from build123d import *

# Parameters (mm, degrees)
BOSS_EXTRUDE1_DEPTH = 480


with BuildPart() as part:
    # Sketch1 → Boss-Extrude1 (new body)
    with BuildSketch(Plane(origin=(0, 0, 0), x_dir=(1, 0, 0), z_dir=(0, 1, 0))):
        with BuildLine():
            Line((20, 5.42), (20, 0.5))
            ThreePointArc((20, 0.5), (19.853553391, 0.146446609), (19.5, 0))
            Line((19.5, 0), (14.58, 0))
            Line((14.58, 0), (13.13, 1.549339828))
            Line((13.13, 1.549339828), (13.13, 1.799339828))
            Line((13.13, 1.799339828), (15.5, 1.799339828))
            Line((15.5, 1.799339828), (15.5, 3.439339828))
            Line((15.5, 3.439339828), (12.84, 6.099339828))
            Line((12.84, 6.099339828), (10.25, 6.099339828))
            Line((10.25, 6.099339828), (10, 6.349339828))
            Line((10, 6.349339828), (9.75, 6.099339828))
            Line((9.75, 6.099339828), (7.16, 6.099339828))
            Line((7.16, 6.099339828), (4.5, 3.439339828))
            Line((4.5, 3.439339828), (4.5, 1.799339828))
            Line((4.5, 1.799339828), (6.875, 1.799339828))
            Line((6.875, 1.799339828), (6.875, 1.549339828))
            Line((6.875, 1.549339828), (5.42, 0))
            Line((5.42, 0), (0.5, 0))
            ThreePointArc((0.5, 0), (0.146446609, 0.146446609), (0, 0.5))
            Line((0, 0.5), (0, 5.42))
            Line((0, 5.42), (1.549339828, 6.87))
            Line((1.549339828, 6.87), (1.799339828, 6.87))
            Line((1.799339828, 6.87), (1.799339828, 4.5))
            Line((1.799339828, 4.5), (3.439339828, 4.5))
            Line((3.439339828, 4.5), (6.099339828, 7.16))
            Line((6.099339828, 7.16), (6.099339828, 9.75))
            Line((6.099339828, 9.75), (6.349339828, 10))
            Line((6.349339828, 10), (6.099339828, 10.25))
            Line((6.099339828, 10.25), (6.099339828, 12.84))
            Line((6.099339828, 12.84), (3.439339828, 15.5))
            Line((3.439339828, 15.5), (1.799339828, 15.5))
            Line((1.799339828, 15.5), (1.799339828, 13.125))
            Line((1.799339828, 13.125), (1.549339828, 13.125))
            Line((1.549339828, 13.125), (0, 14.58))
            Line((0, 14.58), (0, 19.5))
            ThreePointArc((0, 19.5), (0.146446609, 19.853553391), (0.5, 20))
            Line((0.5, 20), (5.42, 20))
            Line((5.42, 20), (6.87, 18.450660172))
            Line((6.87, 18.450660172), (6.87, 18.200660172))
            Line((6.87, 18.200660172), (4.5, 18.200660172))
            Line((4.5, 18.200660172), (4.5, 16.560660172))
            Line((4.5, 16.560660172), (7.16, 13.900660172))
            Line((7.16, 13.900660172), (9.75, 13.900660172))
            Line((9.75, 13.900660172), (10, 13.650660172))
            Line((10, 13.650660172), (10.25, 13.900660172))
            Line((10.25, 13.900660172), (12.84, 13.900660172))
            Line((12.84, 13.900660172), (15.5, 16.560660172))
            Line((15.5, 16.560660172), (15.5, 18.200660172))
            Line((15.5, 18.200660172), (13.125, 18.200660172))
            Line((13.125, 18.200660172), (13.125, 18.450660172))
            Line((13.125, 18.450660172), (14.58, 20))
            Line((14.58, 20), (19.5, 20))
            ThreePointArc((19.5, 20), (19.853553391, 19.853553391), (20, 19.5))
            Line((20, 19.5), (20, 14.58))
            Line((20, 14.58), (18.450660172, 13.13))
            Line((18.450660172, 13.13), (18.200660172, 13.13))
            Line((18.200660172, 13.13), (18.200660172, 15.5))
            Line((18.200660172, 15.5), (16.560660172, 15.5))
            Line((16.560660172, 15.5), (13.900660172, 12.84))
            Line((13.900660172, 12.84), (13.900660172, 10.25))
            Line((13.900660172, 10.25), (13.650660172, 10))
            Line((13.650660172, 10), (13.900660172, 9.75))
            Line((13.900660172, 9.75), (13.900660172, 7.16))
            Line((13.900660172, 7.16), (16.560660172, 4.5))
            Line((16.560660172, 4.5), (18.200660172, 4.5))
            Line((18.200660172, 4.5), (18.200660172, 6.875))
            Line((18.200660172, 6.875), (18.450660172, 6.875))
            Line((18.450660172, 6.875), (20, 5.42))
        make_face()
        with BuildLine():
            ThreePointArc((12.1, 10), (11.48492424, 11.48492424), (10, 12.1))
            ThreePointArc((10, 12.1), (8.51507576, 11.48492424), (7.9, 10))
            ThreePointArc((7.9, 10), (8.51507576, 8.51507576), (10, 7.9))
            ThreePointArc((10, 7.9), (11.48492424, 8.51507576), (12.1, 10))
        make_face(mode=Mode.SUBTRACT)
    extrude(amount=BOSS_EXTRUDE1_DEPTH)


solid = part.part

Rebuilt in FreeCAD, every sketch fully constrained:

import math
import FreeCAD as App
import Part
import Sketcher
from FreeCAD import Vector

doc = App.newDocument("Part")
params = doc.addObject("Spreadsheet::Sheet", "Params")
for row, (alias, value) in enumerate([
    ("sketch1_radius", "0.5 mm"),
    ("sketch1_radius2", "2.1 mm"),
    ("sketch1_width", "0.25 mm"),
    ("sketch1_width2", "1.64 mm"),
    ("sketch1_width3", "4.92 mm"),
    ("pad1_length", "480 mm"),
], start=1):
    params.set(f"A{row}", alias)
    params.set(f"B{row}", "=" + value)
    params.setAlias(f"B{row}", alias)

body = doc.addObject("PartDesign::Body", "Body")

# Sketch on XZ plane
sketch1 = body.newObject("Sketcher::SketchObject", "Sketch")
sketch1.AttachmentSupport = (doc.getObject("XZ_Plane"), [""])
sketch1.MapMode = "FlatFace"
sketch1.addGeometry([
    Part.LineSegment(Vector(20, -0.5, 0), Vector(20, -5.42, 0)),  # 0
    Part.LineSegment(Vector(20, -5.42, 0), Vector(18.45, -6.88, 0)),  # 1
    Part.LineSegment(Vector(18.45, -6.88, 0), Vector(18.2, -6.88, 0)),  # 2
    Part.LineSegment(Vector(18.2, -6.88, 0), Vector(18.2, -4.5, 0)),  # 3
    Part.LineSegment(Vector(18.2, -4.5, 0), Vector(16.56, -4.5, 0)),  # 4
    Part.LineSegment(Vector(16.56, -4.5, 0), Vector(13.9, -7.16, 0)),  # 5
    Part.LineSegment(Vector(13.9, -7.16, 0), Vector(13.9, -9.75, 0)),  # 6
    Part.LineSegment(Vector(13.9, -9.75, 0), Vector(13.65, -10, 0)),  # 7
    Part.LineSegment(Vector(13.65, -10, 0), Vector(13.9, -10.25, 0)),  # 8
    Part.LineSegment(Vector(13.9, -10.25, 0), Vector(13.9, -12.84, 0)),  # 9
    Part.LineSegment(Vector(13.9, -12.84, 0), Vector(16.56, -15.5, 0)),  # 10
    Part.LineSegment(Vector(16.56, -15.5, 0), Vector(18.2, -15.5, 0)),  # 11
    Part.LineSegment(Vector(18.2, -15.5, 0), Vector(18.2, -13.13, 0)),  # 12
    Part.LineSegment(Vector(18.2, -13.13, 0), Vector(18.45, -13.13, 0)),  # 13
    Part.LineSegment(Vector(18.45, -13.13, 0), Vector(20, -14.58, 0)),  # 14
    Part.LineSegment(Vector(20, -14.58, 0), Vector(20, -19.5, 0)),  # 15
    Part.ArcOfCircle(Part.Circle(Vector(19.5, -19.5, 0), Vector(0, 0, 1), 0.5), math.radians(-90), math.radians(0)),  # 16
    Part.LineSegment(Vector(19.5, -20, 0), Vector(14.58, -20, 0)),  # 17
    Part.LineSegment(Vector(14.58, -20, 0), Vector(13.12, -18.45, 0)),  # 18
    Part.LineSegment(Vector(13.12, -18.45, 0), Vector(13.12, -18.2, 0)),  # 19
    Part.LineSegment(Vector(13.12, -18.2, 0), Vector(15.5, -18.2, 0)),  # 20
    Part.LineSegment(Vector(15.5, -18.2, 0), Vector(15.5, -16.56, 0)),  # 21
    Part.LineSegment(Vector(15.5, -16.56, 0), Vector(12.84, -13.9, 0)),  # 22
    Part.LineSegment(Vector(12.84, -13.9, 0), Vector(10.25, -13.9, 0)),  # 23
    Part.LineSegment(Vector(10.25, -13.9, 0), Vector(10, -13.65, 0)),  # 24
    Part.LineSegment(Vector(10, -13.65, 0), Vector(9.75, -13.9, 0)),  # 25
    Part.LineSegment(Vector(9.75, -13.9, 0), Vector(7.16, -13.9, 0)),  # 26
    Part.LineSegment(Vector(7.16, -13.9, 0), Vector(4.5, -16.56, 0)),  # 27
    Part.LineSegment(Vector(4.5, -16.56, 0), Vector(4.5, -18.2, 0)),  # 28
    Part.LineSegment(Vector(4.5, -18.2, 0), Vector(6.87, -18.2, 0)),  # 29
    Part.LineSegment(Vector(6.87, -18.2, 0), Vector(6.87, -18.45, 0)),  # 30
    Part.LineSegment(Vector(6.87, -18.45, 0), Vector(5.42, -20, 0)),  # 31
    Part.LineSegment(Vector(5.42, -20, 0), Vector(0.5, -20, 0)),  # 32
    Part.ArcOfCircle(Part.Circle(Vector(0.5, -19.5, 0), Vector(0, 0, 1), 0.5), math.radians(180), math.radians(270)),  # 33
    Part.LineSegment(Vector(0, -19.5, 0), Vector(0, -14.58, 0)),  # 34
    Part.LineSegment(Vector(0, -14.58, 0), Vector(1.55, -13.12, 0)),  # 35
    Part.LineSegment(Vector(1.55, -13.12, 0), Vector(1.8, -13.12, 0)),  # 36
    Part.LineSegment(Vector(1.8, -13.12, 0), Vector(1.8, -15.5, 0)),  # 37
    Part.LineSegment(Vector(1.8, -15.5, 0), Vector(3.44, -15.5, 0)),  # 38
    Part.LineSegment(Vector(3.44, -15.5, 0), Vector(6.1, -12.84, 0)),  # 39
    Part.LineSegment(Vector(6.1, -12.84, 0), Vector(6.1, -10.25, 0)),  # 40
    Part.LineSegment(Vector(6.1, -10.25, 0), Vector(6.35, -10, 0)),  # 41
    Part.LineSegment(Vector(6.35, -10, 0), Vector(6.1, -9.75, 0)),  # 42
    Part.LineSegment(Vector(6.1, -9.75, 0), Vector(6.1, -7.16, 0)),  # 43
    Part.LineSegment(Vector(6.1, -7.16, 0), Vector(3.44, -4.5, 0)),  # 44
    Part.LineSegment(Vector(3.44, -4.5, 0), Vector(1.8, -4.5, 0)),  # 45
    Part.LineSegment(Vector(1.8, -4.5, 0), Vector(1.8, -6.87, 0)),  # 46
    Part.LineSegment(Vector(1.8, -6.87, 0), Vector(1.55, -6.87, 0)),  # 47
    Part.LineSegment(Vector(1.55, -6.87, 0), Vector(0, -5.42, 0)),  # 48
    Part.LineSegment(Vector(0, -5.42, 0), Vector(0, -0.5, 0)),  # 49
    Part.ArcOfCircle(Part.Circle(Vector(0.5, -0.5, 0), Vector(0, 0, 1), 0.5), math.radians(90), math.radians(180)),  # 50
    Part.LineSegment(Vector(0.5, 0, 0), Vector(5.42, 0, 0)),  # 51
    Part.LineSegment(Vector(5.42, 0, 0), Vector(6.88, -1.55, 0)),  # 52
    Part.LineSegment(Vector(6.88, -1.55, 0), Vector(6.88, -1.8, 0)),  # 53
    Part.LineSegment(Vector(6.88, -1.8, 0), Vector(4.5, -1.8, 0)),  # 54
    Part.LineSegment(Vector(4.5, -1.8, 0), Vector(4.5, -3.44, 0)),  # 55
    Part.LineSegment(Vector(4.5, -3.44, 0), Vector(7.16, -6.1, 0)),  # 56
    Part.LineSegment(Vector(7.16, -6.1, 0), Vector(9.75, -6.1, 0)),  # 57
    Part.LineSegment(Vector(9.75, -6.1, 0), Vector(10, -6.35, 0)),  # 58
    Part.LineSegment(Vector(10, -6.35, 0), Vector(10.25, -6.1, 0)),  # 59
    Part.LineSegment(Vector(10.25, -6.1, 0), Vector(12.84, -6.1, 0)),  # 60
    Part.LineSegment(Vector(12.84, -6.1, 0), Vector(15.5, -3.44, 0)),  # 61
    Part.LineSegment(Vector(15.5, -3.44, 0), Vector(15.5, -1.8, 0)),  # 62
    Part.LineSegment(Vector(15.5, -1.8, 0), Vector(13.13, -1.8, 0)),  # 63
    Part.LineSegment(Vector(13.13, -1.8, 0), Vector(13.13, -1.55, 0)),  # 64
    Part.LineSegment(Vector(13.13, -1.55, 0), Vector(14.58, 0, 0)),  # 65
    Part.LineSegment(Vector(14.58, 0, 0), Vector(19.5, 0, 0)),  # 66
    Part.ArcOfCircle(Part.Circle(Vector(19.5, -0.5, 0), Vector(0, 0, 1), 0.5), math.radians(0), math.radians(90)),  # 67
    Part.ArcOfCircle(Part.Circle(Vector(10, -10, 0), Vector(0, 0, 1), 2.1), math.radians(0), math.radians(90)),  # 68
    Part.ArcOfCircle(Part.Circle(Vector(10, -10, 0), Vector(0, 0, 1), 2.1), math.radians(90), math.radians(180)),  # 69
    Part.ArcOfCircle(Part.Circle(Vector(10, -10, 0), Vector(0, 0, 1), 2.1), math.radians(-180), math.radians(-90)),  # 70
    Part.ArcOfCircle(Part.Circle(Vector(10, -10, 0), Vector(0, 0, 1), 2.1), math.radians(-90), math.radians(0)),  # 71
], False)
sketch1.addConstraint([
    Sketcher.Constraint("Coincident", 0, 2, 1, 1),
    Sketcher.Constraint("Coincident", 1, 2, 2, 1),
    Sketcher.Constraint("Coincident", 2, 2, 3, 1),
    Sketcher.Constraint("Coincident", 3, 2, 4, 1),
    Sketcher.Constraint("Coincident", 4, 2, 5, 1),
    Sketcher.Constraint("Coincident", 5, 2, 6, 1),
    Sketcher.Constraint("Coincident", 6, 2, 7, 1),
    Sketcher.Constraint("Coincident", 7, 2, 8, 1),
    Sketcher.Constraint("Coincident", 8, 2, 9, 1),
    Sketcher.Constraint("Coincident", 9, 2, 10, 1),
    Sketcher.Constraint("Coincident", 10, 2, 11, 1),
    Sketcher.Constraint("Coincident", 11, 2, 12, 1),
    Sketcher.Constraint("Coincident", 12, 2, 13, 1),
    Sketcher.Constraint("Coincident", 13, 2, 14, 1),
    Sketcher.Constraint("Coincident", 14, 2, 15, 1),
    Sketcher.Constraint("Tangent", 15, 2, 16, 2),
    Sketcher.Constraint("Tangent", 16, 1, 17, 1),
    Sketcher.Constraint("Coincident", 17, 2, 18, 1),
    Sketcher.Constraint("Coincident", 18, 2, 19, 1),
    Sketcher.Constraint("Coincident", 19, 2, 20, 1),
    Sketcher.Constraint("Coincident", 20, 2, 21, 1),
    Sketcher.Constraint("Coincident", 21, 2, 22, 1),
    Sketcher.Constraint("Coincident", 22, 2, 23, 1),
    Sketcher.Constraint("Coincident", 23, 2, 24, 1),
    Sketcher.Constraint("Coincident", 24, 2, 25, 1),
    Sketcher.Constraint("Coincident", 25, 2, 26, 1),
    Sketcher.Constraint("Coincident", 26, 2, 27, 1),
    Sketcher.Constraint("Coincident", 27, 2, 28, 1),
    Sketcher.Constraint("Coincident", 28, 2, 29, 1),
    Sketcher.Constraint("Coincident", 29, 2, 30, 1),
    Sketcher.Constraint("Coincident", 30, 2, 31, 1),
    Sketcher.Constraint("Coincident", 31, 2, 32, 1),
    Sketcher.Constraint("Tangent", 32, 2, 33, 2),
    Sketcher.Constraint("Tangent", 33, 1, 34, 1),
    Sketcher.Constraint("Coincident", 34, 2, 35, 1),
    Sketcher.Constraint("Coincident", 35, 2, 36, 1),
    Sketcher.Constraint("Coincident", 36, 2, 37, 1),
    Sketcher.Constraint("Coincident", 37, 2, 38, 1),
    Sketcher.Constraint("Coincident", 38, 2, 39, 1),
    Sketcher.Constraint("Coincident", 39, 2, 40, 1),
    Sketcher.Constraint("Coincident", 40, 2, 41, 1),
    Sketcher.Constraint("Coincident", 41, 2, 42, 1),
    Sketcher.Constraint("Coincident", 42, 2, 43, 1),
    Sketcher.Constraint("Coincident", 43, 2, 44, 1),
    Sketcher.Constraint("Coincident", 44, 2, 45, 1),
    Sketcher.Constraint("Coincident", 45, 2, 46, 1),
    Sketcher.Constraint("Coincident", 46, 2, 47, 1),
    Sketcher.Constraint("Coincident", 47, 2, 48, 1),
    Sketcher.Constraint("Coincident", 48, 2, 49, 1),
    Sketcher.Constraint("Tangent", 49, 2, 50, 2),
    Sketcher.Constraint("Tangent", 50, 1, 51, 1),
    Sketcher.Constraint("Coincident", 51, 2, 52, 1),
    Sketcher.Constraint("Coincident", 52, 2, 53, 1),
    Sketcher.Constraint("Coincident", 53, 2, 54, 1),
    Sketcher.Constraint("Coincident", 54, 2, 55, 1),
    Sketcher.Constraint("Coincident", 55, 2, 56, 1),
    Sketcher.Constraint("Coincident", 56, 2, 57, 1),
    Sketcher.Constraint("Coincident", 57, 2, 58, 1),
    Sketcher.Constraint("Coincident", 58, 2, 59, 1),
    Sketcher.Constraint("Coincident", 59, 2, 60, 1),
    Sketcher.Constraint("Coincident", 60, 2, 61, 1),
    Sketcher.Constraint("Coincident", 61, 2, 62, 1),
    Sketcher.Constraint("Coincident", 62, 2, 63, 1),
    Sketcher.Constraint("Coincident", 63, 2, 64, 1),
    Sketcher.Constraint("Coincident", 64, 2, 65, 1),
    Sketcher.Constraint("Coincident", 65, 2, 66, 1),
    Sketcher.Constraint("Tangent", 66, 2, 67, 2),
    Sketcher.Constraint("Tangent", 67, 1, 0, 1),
    Sketcher.Constraint("Tangent", 68, 2, 69, 1),
    Sketcher.Constraint("Tangent", 69, 2, 70, 1),
    Sketcher.Constraint("Tangent", 70, 2, 71, 1),
    Sketcher.Constraint("Tangent", 71, 2, 68, 1),
    Sketcher.Constraint("Vertical", 0),
    Sketcher.Constraint("Horizontal", 2),
    Sketcher.Constraint("Vertical", 3),
    Sketcher.Constraint("Horizontal", 4),
    Sketcher.Constraint("Vertical", 6),
    Sketcher.Constraint("Vertical", 9),
    Sketcher.Constraint("Horizontal", 11),
    Sketcher.Constraint("Vertical", 12),
    Sketcher.Constraint("Horizontal", 13),
    Sketcher.Constraint("Vertical", 15),
    Sketcher.Constraint("Horizontal", 17),
    Sketcher.Constraint("Vertical", 19),
    Sketcher.Constraint("Horizontal", 20),
    Sketcher.Constraint("Vertical", 21),
    Sketcher.Constraint("Horizontal", 23),
    Sketcher.Constraint("Horizontal", 26),
    Sketcher.Constraint("Vertical", 28),
    Sketcher.Constraint("Horizontal", 29),
    Sketcher.Constraint("Vertical", 30),
    Sketcher.Constraint("Horizontal", 32),
    Sketcher.Constraint("Vertical", 34),
    Sketcher.Constraint("Horizontal", 36),
    Sketcher.Constraint("Vertical", 37),
    Sketcher.Constraint("Horizontal", 38),
    Sketcher.Constraint("Vertical", 40),
    Sketcher.Constraint("Vertical", 43),
    Sketcher.Constraint("Horizontal", 45),
    Sketcher.Constraint("Vertical", 46),
    Sketcher.Constraint("Horizontal", 47),
    Sketcher.Constraint("Vertical", 49),
    Sketcher.Constraint("Horizontal", 51),
    Sketcher.Constraint("Vertical", 53),
    Sketcher.Constraint("Horizontal", 54),
    Sketcher.Constraint("Vertical", 55),
    Sketcher.Constraint("Horizontal", 57),
    Sketcher.Constraint("Horizontal", 60),
    Sketcher.Constraint("Vertical", 62),
    Sketcher.Constraint("Horizontal", 63),
    Sketcher.Constraint("Vertical", 64),
    Sketcher.Constraint("Horizontal", 66),
    Sketcher.Constraint("Equal", 16, 33),
    Sketcher.Constraint("Equal", 33, 50),
    Sketcher.Constraint("Equal", 50, 67),
    Sketcher.Constraint("Equal", 68, 69),
    Sketcher.Constraint("PointOnObject", 33, 1, -2),
    Sketcher.Constraint("PointOnObject", 48, 2, -2),
    Sketcher.Constraint("PointOnObject", 50, 1, -1),
    Sketcher.Constraint("PointOnObject", 65, 2, -1),
    Sketcher.Constraint("Parallel", 5, 7),
    Sketcher.Constraint("Perpendicular", 7, 8),
    Sketcher.Constraint("Parallel", 8, 10),
    Sketcher.Constraint("Perpendicular", 1, 18),
    Sketcher.Constraint("Parallel", 10, 22),
    Sketcher.Constraint("Parallel", 22, 24),
    Sketcher.Constraint("Perpendicular", 24, 25),
    Sketcher.Constraint("Parallel", 25, 27),
    Sketcher.Constraint("Perpendicular", 14, 31),
    Sketcher.Constraint("Perpendicular", 18, 35),
    Sketcher.Constraint("Parallel", 27, 39),
    Sketcher.Constraint("Parallel", 39, 41),
    Sketcher.Constraint("Perpendicular", 41, 42),
    Sketcher.Constraint("Parallel", 42, 44),
    Sketcher.Constraint("Perpendicular", 31, 48),
    Sketcher.Constraint("Perpendicular", 35, 52),
    Sketcher.Constraint("Parallel", 44, 56),
    Sketcher.Constraint("Parallel", 56, 58),
    Sketcher.Constraint("Perpendicular", 58, 59),
    Sketcher.Constraint("Parallel", 59, 61),
    Sketcher.Constraint("Perpendicular", 48, 65),
    Sketcher.Constraint("Horizontal", 16, 3, 33, 3),
    Sketcher.Constraint("Horizontal", 71, 3, 7, 2),
    Sketcher.Constraint("Horizontal", 23, 2, 25, 2),
    Sketcher.Constraint("Horizontal", 21, 2, 27, 2),
    Sketcher.Constraint("Horizontal", 20, 2, 28, 2),
    Sketcher.Constraint("Horizontal", 18, 2, 30, 2),
    Sketcher.Constraint("Horizontal", 14, 2, 34, 2),
    Sketcher.Constraint("Horizontal", 11, 2, 37, 2),
    Sketcher.Constraint("Horizontal", 9, 2, 39, 2),
    Sketcher.Constraint("Horizontal", 8, 2, 40, 2),
    Sketcher.Constraint("Horizontal", 7, 2, 41, 2),
    Sketcher.Constraint("Horizontal", 6, 2, 42, 2),
    Sketcher.Constraint("Horizontal", 5, 2, 43, 2),
    Sketcher.Constraint("Horizontal", 4, 2, 44, 2),
    Sketcher.Constraint("Horizontal", 0, 2, 48, 2),
    Sketcher.Constraint("Horizontal", 57, 2, 59, 2),
    Sketcher.Constraint("Horizontal", 55, 2, 61, 2),
    Sketcher.Constraint("Horizontal", 54, 2, 62, 2),
    Sketcher.Constraint("Horizontal", 52, 2, 64, 2),
    Sketcher.Constraint("Horizontal", 41, 2, 69, 2),
    Sketcher.Constraint("Horizontal", 69, 2, 71, 2),
    Sketcher.Constraint("Vertical", 16, 3, 67, 3),
    Sketcher.Constraint("Vertical", 6, 2, 8, 2),
    Sketcher.Constraint("Vertical", 4, 2, 10, 2),
    Sketcher.Constraint("Vertical", 3, 2, 11, 2),
    Sketcher.Constraint("Vertical", 1, 2, 13, 2),
    Sketcher.Constraint("Vertical", 71, 3, 24, 2),
    Sketcher.Constraint("Vertical", 40, 2, 42, 2),
    Sketcher.Constraint("Vertical", 37, 2, 45, 2),
    Sketcher.Constraint("Vertical", 35, 2, 47, 2),
    Sketcher.Constraint("Vertical", 31, 2, 51, 2),
    Sketcher.Constraint("Vertical", 28, 2, 54, 2),
    Sketcher.Constraint("Vertical", 26, 2, 56, 2),
    Sketcher.Constraint("Vertical", 25, 2, 57, 2),
    Sketcher.Constraint("Vertical", 24, 2, 58, 2),
    Sketcher.Constraint("Vertical", 22, 2, 60, 2),
    Sketcher.Constraint("Vertical", 17, 2, 65, 2),
    Sketcher.Constraint("Vertical", 58, 2, 68, 2),
    Sketcher.Constraint("Vertical", 68, 2, 70, 2),
    Sketcher.Constraint("Equal", 23, 26),
    Sketcher.Constraint("Equal", 17, 32),
    Sketcher.Constraint("Equal", 13, 36),
    Sketcher.Constraint("Equal", 11, 38),
    Sketcher.Constraint("Equal", 20, 54),
    Sketcher.Constraint("Equal", 29, 63),
    Sketcher.Constraint("Equal", 66, 0),
    Sketcher.Constraint("Equal", 54, 3),
    Sketcher.Constraint("Equal", 60, 6),
    Sketcher.Constraint("Equal", 6, 9),
    Sketcher.Constraint("Equal", 63, 12),
    Sketcher.Constraint("Equal", 0, 15),
    Sketcher.Constraint("Equal", 47, 19),
    Sketcher.Constraint("Equal", 45, 21),
    Sketcher.Constraint("Equal", 3, 37),
    Sketcher.Constraint("Equal", 30, 53),
    Sketcher.Constraint("Equal", 28, 55),
    Sketcher.Constraint("Equal", 1, 18),
    Sketcher.Constraint("Equal", 10, 22),
    Sketcher.Constraint("Equal", 8, 24),
    Sketcher.Constraint("Radius", 16, 0.5),
    Sketcher.Constraint("Radius", 68, 2.1),
    Sketcher.Constraint("DistanceX", -1, 1, 68, 3, 10.0),
    Sketcher.Constraint("DistanceX", 2, 2, 2, 1, 0.25),
    Sketcher.Constraint("DistanceX", 4, 2, 4, 1, 1.64),
    Sketcher.Constraint("DistanceX", 17, 2, 17, 1, 4.92),
    Sketcher.Constraint("DistanceX", 23, 2, 23, 1, 2.59),
    Sketcher.Constraint("DistanceX", 29, 1, 29, 2, 2.37),
    Sketcher.Constraint("DistanceY", 3, 2, -1, 1, 4.5),
    Sketcher.Constraint("DistanceX", 20, 1, 20, 2, 2.375),
    Sketcher.Constraint("DistanceY", 5, 2, -1, 1, 7.16),
    Sketcher.Constraint("DistanceX", -1, 1, 1, 2, 18.45066),
])
sketch1.setExpression("Constraints[200]", "Params.sketch1_radius")
sketch1.setExpression("Constraints[201]", "Params.sketch1_radius2")
sketch1.setExpression("Constraints[203]", "Params.sketch1_width")
sketch1.setExpression("Constraints[204]", "Params.sketch1_width2")
sketch1.setExpression("Constraints[205]", "Params.sketch1_width3")
pad1 = body.newObject("PartDesign::Pad", "Pad")
pad1.Profile = sketch1
pad1.setExpression("Length", "Params.pad1_length")
pad1.Reversed = True

doc.recompute()
